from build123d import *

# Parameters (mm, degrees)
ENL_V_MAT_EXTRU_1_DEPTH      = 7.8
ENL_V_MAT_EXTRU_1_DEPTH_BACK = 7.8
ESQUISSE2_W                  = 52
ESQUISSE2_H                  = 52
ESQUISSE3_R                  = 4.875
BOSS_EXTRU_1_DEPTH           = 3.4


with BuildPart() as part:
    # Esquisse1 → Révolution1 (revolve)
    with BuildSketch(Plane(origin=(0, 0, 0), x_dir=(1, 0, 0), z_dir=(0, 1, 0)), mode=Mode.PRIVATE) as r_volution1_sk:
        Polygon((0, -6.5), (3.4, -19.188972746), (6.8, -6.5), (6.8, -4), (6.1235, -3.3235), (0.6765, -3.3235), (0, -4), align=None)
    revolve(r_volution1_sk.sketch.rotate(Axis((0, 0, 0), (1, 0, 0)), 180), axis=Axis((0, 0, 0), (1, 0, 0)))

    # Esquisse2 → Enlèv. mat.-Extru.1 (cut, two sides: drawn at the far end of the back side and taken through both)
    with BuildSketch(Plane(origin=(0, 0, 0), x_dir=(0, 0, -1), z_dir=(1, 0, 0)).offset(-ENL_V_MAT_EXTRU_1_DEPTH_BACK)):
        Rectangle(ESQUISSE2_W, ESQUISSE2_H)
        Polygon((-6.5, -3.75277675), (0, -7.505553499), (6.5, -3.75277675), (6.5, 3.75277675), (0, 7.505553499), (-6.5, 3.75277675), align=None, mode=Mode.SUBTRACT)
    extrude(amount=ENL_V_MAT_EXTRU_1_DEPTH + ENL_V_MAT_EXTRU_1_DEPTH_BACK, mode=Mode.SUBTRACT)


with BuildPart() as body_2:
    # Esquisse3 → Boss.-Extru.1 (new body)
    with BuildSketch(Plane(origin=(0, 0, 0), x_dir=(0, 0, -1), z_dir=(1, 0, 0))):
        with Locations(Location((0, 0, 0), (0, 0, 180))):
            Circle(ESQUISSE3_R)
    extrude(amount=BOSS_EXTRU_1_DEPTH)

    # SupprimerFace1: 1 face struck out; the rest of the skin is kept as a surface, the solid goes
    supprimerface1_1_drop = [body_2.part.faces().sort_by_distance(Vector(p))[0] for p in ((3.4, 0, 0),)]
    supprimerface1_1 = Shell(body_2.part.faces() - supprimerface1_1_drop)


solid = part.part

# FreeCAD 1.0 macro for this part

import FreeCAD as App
import Part
import Sketcher
Q = App.Units.Quantity

doc = App.newDocument("Part")
body = doc.addObject("PartDesign::Body", "Body")

sketch1 = body.newObject("Sketcher::SketchObject", "Sketch")
sketch1.AttachmentSupport = (doc.getObject("XZ_Plane"), [""])
sketch1.MapMode = "FlatFace"
sketch1.addGeometry([
    Part.LineSegment(App.Vector(0, 6.5, 0), App.Vector(3.4, 19.2, 0)),
    Part.LineSegment(App.Vector(3.4, 19.2, 0), App.Vector(6.8, 6.5, 0)),
    Part.LineSegment(App.Vector(6.8, 6.5, 0), App.Vector(6.8, 4, 0)),
    Part.LineSegment(App.Vector(6.8, 4, 0), App.Vector(6.1, 3.3, 0)),
    Part.LineSegment(App.Vector(6.1, 3.3, 0), App.Vector(0.7, 3.3, 0)),
    Part.LineSegment(App.Vector(0.7, 3.3, 0), App.Vector(0, 4, 0)),
    Part.LineSegment(App.Vector(0, 4, 0), App.Vector(0, 6.5, 0)),
], False)
sketch1.addConstraint([
    Sketcher.Constraint("Coincident", 0, 2, 1, 1),
    Sketcher.Constraint("Coincident", 1, 2, 2, 1),
    Sketcher.Constraint("Coincident", 2, 2, 3, 1),
    Sketcher.Constraint("Coincident", 3, 2, 4, 1),
    Sketcher.Constraint("Coincident", 4, 2, 5, 1),
    Sketcher.Constraint("Coincident", 5, 2, 6, 1),
    Sketcher.Constraint("Coincident", 6, 2, 0, 1),
    Sketcher.Constraint("Vertical", 2),
    Sketcher.Constraint("Horizontal", 4),
    Sketcher.Constraint("Vertical", 6),
    Sketcher.Constraint("PointOnObject", 5, 2, -2),
    Sketcher.Constraint("Perpendicular", 3, 5),
    Sketcher.Constraint("Horizontal", 2, 2, 5, 2),
    Sketcher.Constraint("Horizontal", 1, 2, 6, 2),
    Sketcher.Constraint("Equal", 0, 1),
    Sketcher.Constraint("Equal", 3, 5),
    Sketcher.Constraint("Angle", 0, Q("75 deg")),
    Sketcher.Constraint("DistanceY", 2, 2, 2, 1, 2.5),
    Sketcher.Constraint("DistanceY", -1, 1, 2, 2, 4.0),
    Sketcher.Constraint("DistanceX", -1, 1, 0, 2, 3.4),
    Sketcher.Constraint("DistanceX", 4, 2, 4, 1, 5.447),
])
revolution = body.newObject("PartDesign::Revolution", "Revolution")
revolution.Profile = sketch1
revolution.ReferenceAxis = (sketch1, ["H_Axis"])
revolution.Angle = 360

sketch2 = body.newObject("Sketcher::SketchObject", "Sketch001")
sketch2.AttachmentSupport = (doc.getObject("YZ_Plane"), [""])
sketch2.MapMode = "FlatFace"
sketch2.addGeometry([
    Part.LineSegment(App.Vector(26, 26, 0), App.Vector(-26, 26, 0)),
    Part.LineSegment(App.Vector(-26, 26, 0), App.Vector(-26, -26, 0)),
    Part.LineSegment(App.Vector(-26, -26, 0), App.Vector(26, -26, 0)),
    Part.LineSegment(App.Vector(26, -26, 0), App.Vector(26, 26, 0)),
    Part.LineSegment(App.Vector(-8, 0, 0), App.Vector(-4, 6, 0)),
    Part.LineSegment(App.Vector(-4, 6, 0), App.Vector(4, 6, 0)),
    Part.LineSegment(App.Vector(4, 6, 0), App.Vector(8, 0, 0)),
    Part.LineSegment(App.Vector(8, 0, 0), App.Vector(4, -6, 0)),
    Part.LineSegment(App.Vector(4, -6, 0), App.Vector(-4, -6, 0)),
    Part.LineSegment(App.Vector(-4, -6, 0), App.Vector(-8, 0, 0)),
], False)
sketch2.addConstraint([
    Sketcher.Constraint("Coincident", 0, 2, 1, 1),
    Sketcher.Constraint("Coincident", 1, 2, 2, 1),
    Sketcher.Constraint("Coincident", 2, 2, 3, 1),
    Sketcher.Constraint("Coincident", 3, 2, 0, 1),
    Sketcher.Constraint("Coincident", 4, 2, 5, 1),
    Sketcher.Constraint("Coincident", 5, 2, 6, 1),
    Sketcher.Constraint("Coincident", 6, 2, 7, 1),
    Sketcher.Constraint("Coincident", 7, 2, 8, 1),
    Sketcher.Constraint("Coincident", 8, 2, 9, 1),
    Sketcher.Constraint("Coincident", 9, 2, 4, 1),
    Sketcher.Constraint("Horizontal", 0),
    Sketcher.Constraint("Vertical", 1),
    Sketcher.Constraint("Horizontal", 2),
    Sketcher.Constraint("Vertical", 3),
    Sketcher.Constraint("Horizontal", 5),
    Sketcher.Constraint("Horizontal", 8),
    Sketcher.Constraint("Symmetric", 0, 2, 2, 2, -1, 1),
    Sketcher.Constraint("Symmetric", 4, 2, 7, 2, -1, 1),
    Sketcher.Constraint("Symmetric", 6, 2, 9, 2, -1, 1),
    Sketcher.Constraint("PointOnObject", 6, 2, -1),
    Sketcher.Constraint("Parallel", 6, 9),
    Sketcher.Constraint("Vertical", 5, 2, 7, 2),
    Sketcher.Constraint("Equal", 2, 1),
    Sketcher.Constraint("DistanceX", 0, 2, 0, 1, 52.0),
    Sketcher.Constraint("Angle", 4, Q("60 deg")),
    Sketcher.Constraint("DistanceY", 7, 2, 5, 2, 13.0),
    Sketcher.Constraint("DistanceX", 5, 1, 5, 2, 7.505554),
])
pocket1 = body.newObject("PartDesign::Pocket", "Pocket")
pocket1.Profile = sketch2
pocket1.Type = "ThroughAll"
pocket1.Midplane = True
body2 = doc.addObject("PartDesign::Body", "Body001")

sketch3 = body2.newObject("Sketcher::SketchObject", "Sketch002")
sketch3.AttachmentSupport = (doc.getObject("YZ_Plane001"), [""])
sketch3.MapMode = "FlatFace"
sketch3.addGeometry(Part.Circle(App.Vector(0, 0, 0), App.Vector(0, 0, 1), 4.9), False)
sketch3.addConstraint([
    Sketcher.Constraint("Coincident", 0, 3, -1, 1),
    Sketcher.Constraint("Diameter", 0, 9.75),
])
pad1 = body2.newObject("PartDesign::Pad", "Pad")
pad1.Profile = sketch3
pad1.Length = 3.4
body2.Visibility = False

doc.recompute()
